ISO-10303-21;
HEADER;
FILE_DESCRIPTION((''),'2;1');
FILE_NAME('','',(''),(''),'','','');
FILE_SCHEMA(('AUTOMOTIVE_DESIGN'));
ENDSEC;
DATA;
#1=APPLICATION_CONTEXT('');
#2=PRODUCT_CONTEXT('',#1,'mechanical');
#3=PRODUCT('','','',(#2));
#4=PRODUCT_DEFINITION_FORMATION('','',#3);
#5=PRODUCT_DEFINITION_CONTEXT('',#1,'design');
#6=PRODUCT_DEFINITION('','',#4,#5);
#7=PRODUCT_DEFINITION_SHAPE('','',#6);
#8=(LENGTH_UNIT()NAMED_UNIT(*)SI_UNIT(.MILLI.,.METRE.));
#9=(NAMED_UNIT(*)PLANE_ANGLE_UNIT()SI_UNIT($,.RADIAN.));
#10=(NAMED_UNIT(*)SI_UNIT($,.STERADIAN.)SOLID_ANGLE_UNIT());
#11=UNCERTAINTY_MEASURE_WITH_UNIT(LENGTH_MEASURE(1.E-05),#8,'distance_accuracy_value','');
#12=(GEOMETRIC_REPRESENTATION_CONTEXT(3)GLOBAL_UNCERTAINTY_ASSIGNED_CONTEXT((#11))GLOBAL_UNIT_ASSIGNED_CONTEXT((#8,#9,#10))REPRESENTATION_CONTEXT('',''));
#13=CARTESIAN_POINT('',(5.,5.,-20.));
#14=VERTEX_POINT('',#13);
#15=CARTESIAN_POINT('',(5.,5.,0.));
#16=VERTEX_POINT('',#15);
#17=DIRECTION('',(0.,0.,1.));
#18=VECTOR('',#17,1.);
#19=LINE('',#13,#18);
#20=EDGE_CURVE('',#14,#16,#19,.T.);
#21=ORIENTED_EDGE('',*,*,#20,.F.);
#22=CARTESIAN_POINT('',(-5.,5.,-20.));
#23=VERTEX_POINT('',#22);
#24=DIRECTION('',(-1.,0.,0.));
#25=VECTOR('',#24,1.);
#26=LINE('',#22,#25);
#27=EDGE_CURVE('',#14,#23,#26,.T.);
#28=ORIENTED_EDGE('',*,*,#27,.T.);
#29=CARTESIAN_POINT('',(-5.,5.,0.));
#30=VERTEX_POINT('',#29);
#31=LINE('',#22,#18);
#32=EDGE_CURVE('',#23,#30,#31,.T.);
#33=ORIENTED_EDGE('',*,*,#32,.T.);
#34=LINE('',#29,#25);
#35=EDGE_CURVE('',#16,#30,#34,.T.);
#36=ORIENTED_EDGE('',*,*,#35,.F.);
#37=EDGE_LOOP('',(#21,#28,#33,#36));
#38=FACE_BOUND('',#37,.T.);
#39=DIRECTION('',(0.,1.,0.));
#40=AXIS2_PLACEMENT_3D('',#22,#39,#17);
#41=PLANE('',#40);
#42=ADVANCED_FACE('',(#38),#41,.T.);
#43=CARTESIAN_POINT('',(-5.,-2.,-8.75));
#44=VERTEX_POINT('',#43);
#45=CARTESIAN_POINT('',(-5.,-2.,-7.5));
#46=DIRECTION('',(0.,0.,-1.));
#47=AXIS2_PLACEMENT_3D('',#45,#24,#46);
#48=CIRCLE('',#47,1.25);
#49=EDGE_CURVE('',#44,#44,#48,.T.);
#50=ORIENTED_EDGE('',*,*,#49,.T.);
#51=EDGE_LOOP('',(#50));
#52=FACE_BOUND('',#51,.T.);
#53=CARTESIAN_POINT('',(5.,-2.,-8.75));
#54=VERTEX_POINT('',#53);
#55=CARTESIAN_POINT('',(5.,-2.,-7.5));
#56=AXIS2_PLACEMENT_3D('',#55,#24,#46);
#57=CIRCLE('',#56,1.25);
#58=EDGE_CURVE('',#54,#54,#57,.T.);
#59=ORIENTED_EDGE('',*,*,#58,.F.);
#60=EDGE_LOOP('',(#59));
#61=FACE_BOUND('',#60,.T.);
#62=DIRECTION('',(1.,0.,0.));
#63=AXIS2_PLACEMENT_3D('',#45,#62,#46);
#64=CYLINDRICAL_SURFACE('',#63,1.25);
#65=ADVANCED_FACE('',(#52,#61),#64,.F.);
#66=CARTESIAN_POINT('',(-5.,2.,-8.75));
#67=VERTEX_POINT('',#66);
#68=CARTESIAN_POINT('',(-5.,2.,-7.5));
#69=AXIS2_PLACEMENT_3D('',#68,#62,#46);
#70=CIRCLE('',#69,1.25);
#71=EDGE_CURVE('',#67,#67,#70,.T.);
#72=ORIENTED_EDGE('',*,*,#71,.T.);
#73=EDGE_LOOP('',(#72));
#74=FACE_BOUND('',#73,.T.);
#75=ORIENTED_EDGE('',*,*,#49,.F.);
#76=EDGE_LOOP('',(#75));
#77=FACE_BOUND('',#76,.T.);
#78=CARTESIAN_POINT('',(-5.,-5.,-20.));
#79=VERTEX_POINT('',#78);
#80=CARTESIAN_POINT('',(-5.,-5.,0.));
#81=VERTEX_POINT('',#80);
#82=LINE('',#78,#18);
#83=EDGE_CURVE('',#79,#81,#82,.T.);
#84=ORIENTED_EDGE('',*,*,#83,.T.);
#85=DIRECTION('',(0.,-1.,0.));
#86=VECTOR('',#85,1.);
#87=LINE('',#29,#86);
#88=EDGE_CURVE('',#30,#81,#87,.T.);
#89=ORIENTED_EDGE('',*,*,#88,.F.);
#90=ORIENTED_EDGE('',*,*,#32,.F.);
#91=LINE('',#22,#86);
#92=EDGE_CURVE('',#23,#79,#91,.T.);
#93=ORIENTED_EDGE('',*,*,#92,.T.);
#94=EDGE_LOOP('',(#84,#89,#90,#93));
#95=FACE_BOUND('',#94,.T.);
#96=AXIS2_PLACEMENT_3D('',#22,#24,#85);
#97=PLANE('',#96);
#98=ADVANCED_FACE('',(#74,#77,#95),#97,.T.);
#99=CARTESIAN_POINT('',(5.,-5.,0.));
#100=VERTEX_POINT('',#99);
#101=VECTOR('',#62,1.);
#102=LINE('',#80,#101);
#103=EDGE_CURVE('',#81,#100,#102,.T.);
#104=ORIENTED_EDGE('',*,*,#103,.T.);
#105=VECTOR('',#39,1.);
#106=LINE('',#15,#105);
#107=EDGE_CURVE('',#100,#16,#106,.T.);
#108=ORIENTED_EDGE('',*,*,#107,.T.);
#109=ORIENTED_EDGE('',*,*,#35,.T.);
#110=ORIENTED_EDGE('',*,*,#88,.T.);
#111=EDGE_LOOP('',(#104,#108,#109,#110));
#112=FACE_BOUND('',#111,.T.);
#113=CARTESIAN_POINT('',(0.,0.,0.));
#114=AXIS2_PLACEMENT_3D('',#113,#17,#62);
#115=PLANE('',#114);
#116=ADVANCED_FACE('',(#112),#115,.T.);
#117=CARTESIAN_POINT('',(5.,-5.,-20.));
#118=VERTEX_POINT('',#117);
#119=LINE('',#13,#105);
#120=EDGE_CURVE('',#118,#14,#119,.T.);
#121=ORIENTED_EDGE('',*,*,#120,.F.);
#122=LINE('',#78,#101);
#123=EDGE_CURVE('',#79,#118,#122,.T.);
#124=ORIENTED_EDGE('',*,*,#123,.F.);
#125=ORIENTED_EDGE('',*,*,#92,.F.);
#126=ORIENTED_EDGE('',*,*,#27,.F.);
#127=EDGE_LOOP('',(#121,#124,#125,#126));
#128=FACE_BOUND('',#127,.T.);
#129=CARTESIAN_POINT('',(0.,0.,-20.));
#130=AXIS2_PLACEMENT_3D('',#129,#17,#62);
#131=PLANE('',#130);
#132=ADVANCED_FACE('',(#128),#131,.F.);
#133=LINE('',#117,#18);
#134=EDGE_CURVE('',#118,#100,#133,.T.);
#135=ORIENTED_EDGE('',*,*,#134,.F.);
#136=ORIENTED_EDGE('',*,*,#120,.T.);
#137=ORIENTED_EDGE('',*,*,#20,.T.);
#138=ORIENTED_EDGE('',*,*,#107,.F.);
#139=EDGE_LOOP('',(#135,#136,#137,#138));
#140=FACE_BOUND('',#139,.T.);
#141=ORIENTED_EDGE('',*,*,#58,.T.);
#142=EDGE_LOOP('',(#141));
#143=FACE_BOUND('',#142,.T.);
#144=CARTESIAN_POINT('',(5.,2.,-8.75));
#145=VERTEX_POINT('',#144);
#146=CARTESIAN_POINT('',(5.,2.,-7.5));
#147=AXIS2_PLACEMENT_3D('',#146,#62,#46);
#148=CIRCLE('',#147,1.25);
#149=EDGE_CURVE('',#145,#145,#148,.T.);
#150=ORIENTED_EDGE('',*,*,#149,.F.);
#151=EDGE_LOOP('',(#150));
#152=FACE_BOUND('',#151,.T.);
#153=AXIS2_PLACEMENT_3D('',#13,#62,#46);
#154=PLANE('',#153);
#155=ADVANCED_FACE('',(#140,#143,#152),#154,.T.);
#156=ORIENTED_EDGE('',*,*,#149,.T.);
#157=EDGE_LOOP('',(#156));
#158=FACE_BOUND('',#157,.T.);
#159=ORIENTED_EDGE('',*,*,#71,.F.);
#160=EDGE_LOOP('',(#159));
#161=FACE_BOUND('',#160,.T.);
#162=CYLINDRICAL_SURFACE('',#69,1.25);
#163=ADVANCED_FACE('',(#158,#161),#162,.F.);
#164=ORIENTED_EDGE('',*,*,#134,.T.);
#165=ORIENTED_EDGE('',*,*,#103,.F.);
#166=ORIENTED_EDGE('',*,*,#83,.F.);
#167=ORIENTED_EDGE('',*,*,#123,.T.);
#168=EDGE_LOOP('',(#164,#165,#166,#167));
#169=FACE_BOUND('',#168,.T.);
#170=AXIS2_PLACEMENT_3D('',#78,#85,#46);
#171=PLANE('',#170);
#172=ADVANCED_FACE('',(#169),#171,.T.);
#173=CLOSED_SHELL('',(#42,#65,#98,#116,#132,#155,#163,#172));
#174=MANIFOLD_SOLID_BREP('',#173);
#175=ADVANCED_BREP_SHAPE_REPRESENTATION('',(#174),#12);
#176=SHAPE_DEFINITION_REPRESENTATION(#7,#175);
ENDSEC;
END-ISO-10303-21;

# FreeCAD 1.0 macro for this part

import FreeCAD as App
import Part
import Sketcher

V = App.Vector


def add_polygon(sketch, points):
    """Adds a closed chain of lines whose ends are joined by coincident constraints."""
    first, n = sketch.GeometryCount, len(points)
    for a, b in zip(points, points[1:] + points[:1]):
        sketch.addGeometry(Part.LineSegment(App.Vector(*a, 0), App.Vector(*b, 0)), False)
    for i in range(n):
        sketch.addConstraint(Sketcher.Constraint("Coincident", first + i, 2, first + (i + 1) % n, 1))

doc = App.newDocument("Part")
params = doc.addObject("Spreadsheet::Sheet", "Params")
for row, (alias, value) in enumerate([
    ("sketch1_width", "10 mm"),
    ("pad1_length", "20 mm"),
    ("sketch2_diameter", "2.5 mm"),
    ("pocket1_length", "10 mm"),
], start=1):
    params.set(f"A{row}", alias)
    params.set(f"B{row}", "=" + value)
    params.setAlias(f"B{row}", alias)

body = doc.addObject("PartDesign::Body", "Body")

# Sketch on XY plane
sketch1 = body.newObject("Sketcher::SketchObject", "Sketch")
sketch1.AttachmentSupport = (doc.getObject("XY_Plane"), [""])
sketch1.MapMode = "FlatFace"
add_polygon(sketch1, [(-5, 5), (-5, -5), (5, -5), (5, 5)])  # lines 0-3
sketch1.addConstraint([
    Sketcher.Constraint("Vertical", 0),
    Sketcher.Constraint("Horizontal", 1),
    Sketcher.Constraint("Vertical", 2),
    Sketcher.Constraint("Horizontal", 3),
    Sketcher.Constraint("Symmetric", 0, 2, 2, 2, -1, 1),
    Sketcher.Constraint("Equal", 3, 0),
    Sketcher.Constraint("DistanceX", 1, 1, 1, 2, 10.0),
])
sketch1.setExpression("Constraints[10]", "Params.sketch1_width")
pad1 = body.newObject("PartDesign::Pad", "Pad")
pad1.Profile = sketch1
pad1.setExpression("Length", "Params.pad1_length")
pad1.Reversed = True

# Sketch on YZ plane
sketch2 = body.newObject("Sketcher::SketchObject", "Sketch001")
sketch2.AttachmentSupport = (doc.getObject("YZ_Plane"), [""])
sketch2.MapMode = "FlatFace"
sketch2.AttachmentOffset = App.Placement(V(0, 0, 5), App.Rotation())
sketch2.addGeometry(Part.Circle(V(2, -7.5, 0), V(0, 0, 1), 1.25), False)
sketch2.addConstraint([
    Sketcher.Constraint("Diameter", 0, 2.5),
    Sketcher.Constraint("DistanceX", -1, 1, 0, 3, 2.0),
    Sketcher.Constraint("DistanceY", 0, 3, -1, 1, 7.5),
])
sketch2.setExpression("Constraints[0]", "Params.sketch2_diameter")
pocket1 = body.newObject("PartDesign::Pocket", "Pocket")
pocket1.Profile = sketch2
pocket1.setExpression("Length", "Params.pocket1_length")
doc.recompute()

mirrored = body.newObject("PartDesign::Mirrored", "Mirrored")
mirrored.Originals = [pocket1]
mirrored.MirrorPlane = (doc.getObject("XZ_Plane"), [""])
body.Tip = mirrored

doc.recompute()
